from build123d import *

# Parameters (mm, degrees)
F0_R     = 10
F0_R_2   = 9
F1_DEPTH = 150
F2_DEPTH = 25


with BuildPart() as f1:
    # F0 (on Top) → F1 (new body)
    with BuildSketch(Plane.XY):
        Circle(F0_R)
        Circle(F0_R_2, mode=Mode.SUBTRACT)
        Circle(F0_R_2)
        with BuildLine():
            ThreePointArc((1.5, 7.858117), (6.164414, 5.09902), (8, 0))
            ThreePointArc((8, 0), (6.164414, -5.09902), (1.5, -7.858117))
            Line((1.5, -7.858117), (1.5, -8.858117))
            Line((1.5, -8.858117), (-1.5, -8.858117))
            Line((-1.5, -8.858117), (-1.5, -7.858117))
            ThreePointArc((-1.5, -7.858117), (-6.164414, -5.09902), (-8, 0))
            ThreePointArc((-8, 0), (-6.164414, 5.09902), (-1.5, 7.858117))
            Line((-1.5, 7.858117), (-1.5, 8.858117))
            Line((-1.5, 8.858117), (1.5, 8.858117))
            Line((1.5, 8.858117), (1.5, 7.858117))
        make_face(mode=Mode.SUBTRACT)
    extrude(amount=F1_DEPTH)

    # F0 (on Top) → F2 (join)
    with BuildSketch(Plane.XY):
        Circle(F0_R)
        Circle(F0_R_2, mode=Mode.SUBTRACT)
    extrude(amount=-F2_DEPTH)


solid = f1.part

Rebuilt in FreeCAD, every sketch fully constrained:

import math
import FreeCAD as App
import Part
import Sketcher

V = App.Vector
Q = App.Units.Quantity

doc = App.newDocument("Part")
body = doc.addObject("PartDesign::Body", "Body")

sketch1 = body.newObject("Sketcher::SketchObject", "Sketch")
sketch1.AttachmentSupport = (doc.getObject("XY_Plane"), [""])
sketch1.MapMode = "FlatFace"
sketch1.addGeometry(Part.Circle(V(0, 0, 0), V(0, 0, 1), 10), False)
sketch1.addGeometry(Part.LineSegment(V(1.5, 8.9, 0), V(1.5, 7.9, 0)), False)
sketch1.addGeometry(Part.ArcOfCircle(Part.Circle(V(0, 0, 0), V(0, 0, 1), 8), math.radians(0), math.radians(79)), False)
sketch1.addGeometry(Part.ArcOfCircle(Part.Circle(V(0, 0, 0), V(0, 0, 1), 8), math.radians(-79), math.radians(0)), False)
sketch1.addGeometry(Part.LineSegment(V(1.5, -7.9, 0), V(1.5, -8.9, 0)), False)
sketch1.addGeometry(Part.LineSegment(V(1.5, -8.9, 0), V(-1.5, -8.9, 0)), False)
sketch1.addGeometry(Part.LineSegment(V(-1.5, -8.9, 0), V(-1.5, -7.9, 0)), False)
sketch1.addGeometry(Part.ArcOfCircle(Part.Circle(V(0, 0, 0), V(0, 0, 1), 8), math.radians(180), math.radians(259)), False)
sketch1.addGeometry(Part.ArcOfCircle(Part.Circle(V(0, 0, 0), V(0, 0, 1), 8), math.radians(101), math.radians(180)), False)
sketch1.addGeometry(Part.LineSegment(V(-1.5, 7.9, 0), V(-1.5, 8.9, 0)), False)
sketch1.addGeometry(Part.LineSegment(V(-1.5, 8.9, 0), V(1.5, 8.9, 0)), False)
sketch1.addConstraint(Sketcher.Constraint("Coincident", 1, 2, 2, 2))
sketch1.addConstraint(Sketcher.Constraint("Tangent", 2, 1, 3, 2))
sketch1.addConstraint(Sketcher.Constraint("Coincident", 3, 1, 4, 1))
sketch1.addConstraint(Sketcher.Constraint("Coincident", 4, 2, 5, 1))
sketch1.addConstraint(Sketcher.Constraint("Coincident", 5, 2, 6, 1))
sketch1.addConstraint(Sketcher.Constraint("Coincident", 6, 2, 7, 2))
sketch1.addConstraint(Sketcher.Constraint("Tangent", 7, 1, 8, 2))
sketch1.addConstraint(Sketcher.Constraint("Coincident", 8, 1, 9, 1))
sketch1.addConstraint(Sketcher.Constraint("Coincident", 9, 2, 10, 1))
sketch1.addConstraint(Sketcher.Constraint("Coincident", 10, 2, 1, 1))
sketch1.addConstraint(Sketcher.Constraint("Vertical", 1))
sketch1.addConstraint(Sketcher.Constraint("Vertical", 4))
sketch1.addConstraint(Sketcher.Constraint("Horizontal", 5))
sketch1.addConstraint(Sketcher.Constraint("Vertical", 6))
sketch1.addConstraint(Sketcher.Constraint("Vertical", 9))
sketch1.addConstraint(Sketcher.Constraint("Horizontal", 10))
sketch1.addConstraint(Sketcher.Constraint("Coincident", 0, 3, -1, 1))
sketch1.addConstraint(Sketcher.Constraint("Coincident", 2, 3, -1, 1))
sketch1.addConstraint(Sketcher.Constraint("Coincident", 7, 3, -1, 1))
sketch1.addConstraint(Sketcher.Constraint("Equal", 2, 3))
sketch1.addConstraint(Sketcher.Constraint("Equal", 3, 7))
sketch1.addConstraint(Sketcher.Constraint("Equal", 7, 8))
sketch1.addConstraint(Sketcher.Constraint("Symmetric", 4, 2, 9, 2, -1, 1))
sketch1.addConstraint(Sketcher.Constraint("PointOnObject", 2, 1, -1))
sketch1.addConstraint(Sketcher.Constraint("PointOnObject", 7, 1, -1))
sketch1.addConstraint(Sketcher.Constraint("Horizontal", 3, 1, 6, 2))
sketch1.addConstraint(Sketcher.Constraint("Horizontal", 1, 2, 8, 1))
sketch1.addConstraint(Sketcher.Constraint("Diameter", 0, Q("20 mm")))
sketch1.addConstraint(Sketcher.Constraint("Radius", 2, Q("7.999999 mm")))
sketch1.addConstraint(Sketcher.Constraint("DistanceX", 5, 2, 5, 1, Q("3 mm")))
sketch1.addConstraint(Sketcher.Constraint("DistanceY", 1, 2, 1, 1, Q("1 mm")))
pad1 = body.newObject("PartDesign::Pad", "Pad")
pad1.Profile = sketch1
pad1.Length = 150

sketch2 = body.newObject("Sketcher::SketchObject", "Sketch001")
sketch2.AttachmentSupport = (doc.getObject("XY_Plane"), [""])
sketch2.MapMode = "FlatFace"
sketch2.addGeometry(Part.Circle(V(0, 0, 0), V(0, 0, 1), 10), False)
sketch2.addGeometry(Part.Circle(V(0, 0, 0), V(0, 0, 1), 9), False)
sketch2.addConstraint(Sketcher.Constraint("Coincident", 0, 3, -1, 1))
sketch2.addConstraint(Sketcher.Constraint("Coincident", 1, 3, -1, 1))
sketch2.addConstraint(Sketcher.Constraint("Diameter", 0, Q("20 mm")))
sketch2.addConstraint(Sketcher.Constraint("Diameter", 1, Q("18 mm")))
pad2 = body.newObject("PartDesign::Pad", "Pad001")
pad2.Profile = sketch2
pad2.Length = 25
pad2.Reversed = True

doc.recompute()
